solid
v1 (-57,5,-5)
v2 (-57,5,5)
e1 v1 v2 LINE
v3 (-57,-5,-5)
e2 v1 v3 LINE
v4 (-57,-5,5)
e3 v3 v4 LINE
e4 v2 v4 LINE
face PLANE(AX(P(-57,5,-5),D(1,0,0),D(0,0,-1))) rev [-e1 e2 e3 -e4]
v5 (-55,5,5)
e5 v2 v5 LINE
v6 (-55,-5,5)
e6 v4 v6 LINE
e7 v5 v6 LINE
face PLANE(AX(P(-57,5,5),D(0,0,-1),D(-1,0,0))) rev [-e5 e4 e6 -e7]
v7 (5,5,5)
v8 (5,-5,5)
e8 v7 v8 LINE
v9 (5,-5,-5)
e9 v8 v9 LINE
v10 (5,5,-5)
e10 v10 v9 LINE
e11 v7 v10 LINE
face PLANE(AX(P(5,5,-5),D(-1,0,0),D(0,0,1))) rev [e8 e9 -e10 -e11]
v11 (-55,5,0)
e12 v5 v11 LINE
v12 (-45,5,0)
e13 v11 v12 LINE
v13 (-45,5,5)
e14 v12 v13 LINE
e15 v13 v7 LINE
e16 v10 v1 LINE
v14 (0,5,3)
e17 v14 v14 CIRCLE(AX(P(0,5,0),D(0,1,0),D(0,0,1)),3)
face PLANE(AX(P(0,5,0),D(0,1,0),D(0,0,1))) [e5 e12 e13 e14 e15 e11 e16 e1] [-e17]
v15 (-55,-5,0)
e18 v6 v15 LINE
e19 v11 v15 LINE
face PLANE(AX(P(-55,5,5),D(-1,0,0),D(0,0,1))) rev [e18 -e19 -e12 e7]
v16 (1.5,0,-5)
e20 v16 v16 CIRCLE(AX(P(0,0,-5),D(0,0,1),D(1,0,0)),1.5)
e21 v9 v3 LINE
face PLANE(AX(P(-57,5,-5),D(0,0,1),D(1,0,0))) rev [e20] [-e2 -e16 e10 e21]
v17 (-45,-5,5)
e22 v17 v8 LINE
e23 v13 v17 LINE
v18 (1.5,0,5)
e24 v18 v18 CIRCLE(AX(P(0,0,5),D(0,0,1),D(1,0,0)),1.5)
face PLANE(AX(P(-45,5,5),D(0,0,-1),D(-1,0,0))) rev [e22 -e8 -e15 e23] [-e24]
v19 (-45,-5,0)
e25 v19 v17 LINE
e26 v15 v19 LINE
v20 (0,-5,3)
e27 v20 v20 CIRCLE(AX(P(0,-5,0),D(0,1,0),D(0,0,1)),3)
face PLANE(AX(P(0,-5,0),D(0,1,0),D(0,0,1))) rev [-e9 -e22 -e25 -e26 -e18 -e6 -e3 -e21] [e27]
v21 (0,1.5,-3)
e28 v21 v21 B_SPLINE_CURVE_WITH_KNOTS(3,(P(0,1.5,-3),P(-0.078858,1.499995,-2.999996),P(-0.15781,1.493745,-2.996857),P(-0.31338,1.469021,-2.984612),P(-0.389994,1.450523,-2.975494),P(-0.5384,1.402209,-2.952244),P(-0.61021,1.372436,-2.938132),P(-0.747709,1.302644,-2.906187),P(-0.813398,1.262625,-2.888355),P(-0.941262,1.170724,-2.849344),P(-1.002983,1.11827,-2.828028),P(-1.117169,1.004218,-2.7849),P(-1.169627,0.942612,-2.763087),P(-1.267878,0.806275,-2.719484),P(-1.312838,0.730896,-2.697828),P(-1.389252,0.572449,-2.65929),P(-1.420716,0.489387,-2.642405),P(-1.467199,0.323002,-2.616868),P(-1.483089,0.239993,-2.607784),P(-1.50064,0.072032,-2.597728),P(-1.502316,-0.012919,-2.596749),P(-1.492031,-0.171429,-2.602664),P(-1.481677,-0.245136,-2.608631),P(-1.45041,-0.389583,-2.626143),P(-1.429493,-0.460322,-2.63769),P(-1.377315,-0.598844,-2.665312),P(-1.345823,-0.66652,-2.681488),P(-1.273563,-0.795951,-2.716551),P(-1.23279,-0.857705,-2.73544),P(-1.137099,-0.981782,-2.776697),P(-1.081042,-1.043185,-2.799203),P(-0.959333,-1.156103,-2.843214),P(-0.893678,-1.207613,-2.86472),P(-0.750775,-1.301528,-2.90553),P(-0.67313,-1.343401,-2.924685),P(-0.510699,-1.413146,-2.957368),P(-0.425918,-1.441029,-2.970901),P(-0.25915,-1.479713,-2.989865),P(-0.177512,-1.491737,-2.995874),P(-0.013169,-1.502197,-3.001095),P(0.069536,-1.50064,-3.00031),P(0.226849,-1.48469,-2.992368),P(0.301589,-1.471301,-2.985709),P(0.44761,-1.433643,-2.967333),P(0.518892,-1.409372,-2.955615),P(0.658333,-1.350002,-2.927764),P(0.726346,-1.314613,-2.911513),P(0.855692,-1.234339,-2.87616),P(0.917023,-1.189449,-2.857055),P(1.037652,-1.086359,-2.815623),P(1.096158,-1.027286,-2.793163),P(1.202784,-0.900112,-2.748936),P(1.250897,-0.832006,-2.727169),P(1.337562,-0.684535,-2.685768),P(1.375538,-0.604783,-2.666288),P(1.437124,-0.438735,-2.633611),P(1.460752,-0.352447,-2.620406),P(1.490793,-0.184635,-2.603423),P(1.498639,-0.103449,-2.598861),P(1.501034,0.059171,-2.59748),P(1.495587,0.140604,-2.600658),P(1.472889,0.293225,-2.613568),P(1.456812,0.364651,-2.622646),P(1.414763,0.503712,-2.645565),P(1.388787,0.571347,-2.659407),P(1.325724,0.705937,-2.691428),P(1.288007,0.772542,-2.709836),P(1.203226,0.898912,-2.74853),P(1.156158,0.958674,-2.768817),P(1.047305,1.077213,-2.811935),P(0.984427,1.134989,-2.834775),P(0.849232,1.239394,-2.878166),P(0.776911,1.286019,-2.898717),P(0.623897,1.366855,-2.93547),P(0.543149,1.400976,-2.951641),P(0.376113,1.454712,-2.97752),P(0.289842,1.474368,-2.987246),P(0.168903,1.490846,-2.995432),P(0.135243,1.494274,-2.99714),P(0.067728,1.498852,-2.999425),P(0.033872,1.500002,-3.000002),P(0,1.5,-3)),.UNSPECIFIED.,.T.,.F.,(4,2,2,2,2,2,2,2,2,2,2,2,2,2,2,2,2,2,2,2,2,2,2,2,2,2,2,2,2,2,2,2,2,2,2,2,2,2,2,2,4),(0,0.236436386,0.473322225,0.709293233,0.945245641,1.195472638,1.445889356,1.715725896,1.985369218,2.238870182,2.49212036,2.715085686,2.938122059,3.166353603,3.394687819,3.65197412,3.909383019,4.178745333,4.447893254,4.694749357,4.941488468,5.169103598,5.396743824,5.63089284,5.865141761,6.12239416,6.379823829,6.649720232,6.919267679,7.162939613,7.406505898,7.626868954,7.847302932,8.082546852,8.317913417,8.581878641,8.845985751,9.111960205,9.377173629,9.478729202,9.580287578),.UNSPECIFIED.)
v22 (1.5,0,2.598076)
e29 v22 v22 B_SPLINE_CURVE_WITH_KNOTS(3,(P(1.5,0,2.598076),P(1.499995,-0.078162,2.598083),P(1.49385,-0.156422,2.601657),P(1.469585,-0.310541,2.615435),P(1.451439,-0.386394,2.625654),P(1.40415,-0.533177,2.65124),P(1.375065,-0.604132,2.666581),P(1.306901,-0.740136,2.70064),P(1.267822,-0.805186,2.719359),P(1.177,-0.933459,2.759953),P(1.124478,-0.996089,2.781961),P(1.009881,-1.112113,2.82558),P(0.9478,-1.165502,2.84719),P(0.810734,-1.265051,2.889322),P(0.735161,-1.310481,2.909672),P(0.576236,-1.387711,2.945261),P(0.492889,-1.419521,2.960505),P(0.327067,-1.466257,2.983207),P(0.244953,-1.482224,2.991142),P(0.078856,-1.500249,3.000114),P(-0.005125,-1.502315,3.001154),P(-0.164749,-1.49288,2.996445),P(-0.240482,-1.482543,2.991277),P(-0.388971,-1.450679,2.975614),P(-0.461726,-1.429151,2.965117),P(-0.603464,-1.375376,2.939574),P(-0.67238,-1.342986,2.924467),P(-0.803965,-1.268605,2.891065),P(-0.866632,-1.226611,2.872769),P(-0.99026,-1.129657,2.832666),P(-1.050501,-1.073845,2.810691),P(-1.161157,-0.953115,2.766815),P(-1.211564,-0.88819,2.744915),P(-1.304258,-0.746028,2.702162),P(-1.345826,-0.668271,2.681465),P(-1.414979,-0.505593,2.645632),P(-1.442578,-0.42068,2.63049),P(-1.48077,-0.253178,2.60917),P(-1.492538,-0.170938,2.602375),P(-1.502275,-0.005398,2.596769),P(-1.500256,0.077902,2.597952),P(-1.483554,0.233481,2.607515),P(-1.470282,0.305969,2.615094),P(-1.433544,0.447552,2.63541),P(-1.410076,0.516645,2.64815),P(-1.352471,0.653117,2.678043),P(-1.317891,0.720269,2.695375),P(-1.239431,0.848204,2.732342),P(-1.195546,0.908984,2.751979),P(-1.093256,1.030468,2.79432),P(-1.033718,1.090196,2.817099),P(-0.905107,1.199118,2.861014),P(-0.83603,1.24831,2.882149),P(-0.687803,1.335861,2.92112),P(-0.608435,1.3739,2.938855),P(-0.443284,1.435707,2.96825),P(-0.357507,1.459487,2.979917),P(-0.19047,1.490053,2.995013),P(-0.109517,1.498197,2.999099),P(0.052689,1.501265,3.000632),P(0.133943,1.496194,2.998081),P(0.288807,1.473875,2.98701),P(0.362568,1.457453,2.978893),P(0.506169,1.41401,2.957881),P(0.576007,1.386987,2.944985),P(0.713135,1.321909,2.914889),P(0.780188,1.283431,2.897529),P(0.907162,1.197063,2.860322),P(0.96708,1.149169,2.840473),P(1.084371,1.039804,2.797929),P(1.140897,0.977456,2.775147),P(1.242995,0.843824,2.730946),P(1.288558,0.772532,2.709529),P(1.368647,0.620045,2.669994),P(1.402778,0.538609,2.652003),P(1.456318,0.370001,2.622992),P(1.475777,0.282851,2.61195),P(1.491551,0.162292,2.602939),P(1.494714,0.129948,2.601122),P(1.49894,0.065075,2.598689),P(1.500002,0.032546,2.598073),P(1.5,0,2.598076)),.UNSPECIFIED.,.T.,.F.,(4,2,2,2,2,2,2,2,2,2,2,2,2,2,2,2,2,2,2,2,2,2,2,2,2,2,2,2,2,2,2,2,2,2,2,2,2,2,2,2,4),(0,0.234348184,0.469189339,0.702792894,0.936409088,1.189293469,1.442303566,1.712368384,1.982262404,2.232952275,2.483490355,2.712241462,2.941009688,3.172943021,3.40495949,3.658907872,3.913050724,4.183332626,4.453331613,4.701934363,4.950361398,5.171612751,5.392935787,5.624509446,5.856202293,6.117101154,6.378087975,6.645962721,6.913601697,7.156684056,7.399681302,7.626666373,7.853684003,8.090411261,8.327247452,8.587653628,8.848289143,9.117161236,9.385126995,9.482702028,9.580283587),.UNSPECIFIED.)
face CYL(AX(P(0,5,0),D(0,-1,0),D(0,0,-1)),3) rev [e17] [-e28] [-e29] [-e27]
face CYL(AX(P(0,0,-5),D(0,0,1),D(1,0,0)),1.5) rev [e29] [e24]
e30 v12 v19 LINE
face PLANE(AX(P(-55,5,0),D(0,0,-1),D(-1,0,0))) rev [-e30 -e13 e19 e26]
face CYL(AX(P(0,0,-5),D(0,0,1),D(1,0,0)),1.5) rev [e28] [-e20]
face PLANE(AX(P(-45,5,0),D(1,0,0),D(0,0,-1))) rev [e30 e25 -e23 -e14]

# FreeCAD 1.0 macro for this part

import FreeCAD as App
import Part
import Sketcher
Q = App.Units.Quantity

doc = App.newDocument("Part")
params = doc.addObject("Spreadsheet::Sheet", "Params")
for row, (alias, value) in enumerate([
    ("sketch1_diameter", "6 mm"),
    ("sketch1_width", "10 mm"),
    ("sketch1_width2", "50 mm"),
    ("sketch1_width3", "62 mm"),
    ("sketch1_height", "5 mm"),
    ("pad1_length", "10 mm"),
    ("sketch2_diameter", "3 mm"),
], start=1):
    params.set(f"A{row}", alias)
    params.set(f"B{row}", "=" + value)
    params.setAlias(f"B{row}", alias)

body = doc.addObject("PartDesign::Body", "Body")

# Sketch on XZ plane
sketch1 = body.newObject("Sketcher::SketchObject", "Sketch")
sketch1.AttachmentSupport = (doc.getObject("XZ_Plane"), [""])
sketch1.MapMode = "FlatFace"
sketch1.addGeometry([
    Part.LineSegment(App.Vector(-55, 5, 0), App.Vector(-55, 0, 0)),  # 0
    Part.LineSegment(App.Vector(-55, 0, 0), App.Vector(-45, 0, 0)),  # 1
    Part.LineSegment(App.Vector(-45, 0, 0), App.Vector(-45, 5, 0)),  # 2
    Part.LineSegment(App.Vector(-45, 5, 0), App.Vector(5, 5, 0)),  # 3
    Part.LineSegment(App.Vector(5, 5, 0), App.Vector(5, -5, 0)),  # 4
    Part.LineSegment(App.Vector(5, -5, 0), App.Vector(-57, -5, 0)),  # 5
    Part.LineSegment(App.Vector(-57, -5, 0), App.Vector(-57, 5, 0)),  # 6
    Part.LineSegment(App.Vector(-57, 5, 0), App.Vector(-55, 5, 0)),  # 7
    Part.Circle(App.Vector(0, 0, 0), App.Vector(0, 0, 1), 3),  # 8
], False)
sketch1.addConstraint([
    Sketcher.Constraint("Coincident", 0, 2, 1, 1),
    Sketcher.Constraint("Coincident", 1, 2, 2, 1),
    Sketcher.Constraint("Coincident", 2, 2, 3, 1),
    Sketcher.Constraint("Coincident", 3, 2, 4, 1),
    Sketcher.Constraint("Coincident", 4, 2, 5, 1),
    Sketcher.Constraint("Coincident", 5, 2, 6, 1),
    Sketcher.Constraint("Coincident", 6, 2, 7, 1),
    Sketcher.Constraint("Coincident", 7, 2, 0, 1),
    Sketcher.Constraint("Vertical", 0),
    Sketcher.Constraint("Horizontal", 1),
    Sketcher.Constraint("Vertical", 2),
    Sketcher.Constraint("Horizontal", 3),
    Sketcher.Constraint("Vertical", 4),
    Sketcher.Constraint("Horizontal", 5),
    Sketcher.Constraint("Vertical", 6),
    Sketcher.Constraint("Horizontal", 7),
    Sketcher.Constraint("Coincident", 8, 3, -1, 1),
    Sketcher.Constraint("PointOnObject", 0, 2, -1),
    Sketcher.Constraint("Horizontal", 3, 2, 6, 2),
    Sketcher.Constraint("Equal", 1, 4),
    Sketcher.Constraint("Diameter", 8, Q("6 mm")),
    Sketcher.Constraint("DistanceX", 1, 1, 1, 2, Q("10 mm")),
    Sketcher.Constraint("DistanceX", 3, 1, 3, 2, Q("50 mm")),
    Sketcher.Constraint("DistanceX", 5, 2, 5, 1, Q("62 mm")),
    Sketcher.Constraint("DistanceY", 0, 2, 0, 1, Q("5 mm")),
    Sketcher.Constraint("DistanceX", 0, 2, -1, 1, Q("55 mm")),
])
sketch1.setExpression("Constraints[20]", "Params.sketch1_diameter")
sketch1.setExpression("Constraints[21]", "Params.sketch1_width")
sketch1.setExpression("Constraints[22]", "Params.sketch1_width2")
sketch1.setExpression("Constraints[23]", "Params.sketch1_width3")
sketch1.setExpression("Constraints[24]", "Params.sketch1_height")
pad1 = body.newObject("PartDesign::Pad", "Pad")
pad1.Profile = sketch1
pad1.setExpression("Length", "Params.pad1_length")
pad1.Midplane = True

# Sketch on XY plane
sketch2 = body.newObject("Sketcher::SketchObject", "Sketch001")
sketch2.AttachmentSupport = (doc.getObject("XY_Plane"), [""])
sketch2.MapMode = "FlatFace"
sketch2.AttachmentOffset = App.Placement(App.Vector(0, 0, 5), App.Rotation())
sketch2.addGeometry(Part.Circle(App.Vector(0, 0, 0), App.Vector(0, 0, 1), 1.5), False)
sketch2.addConstraint([
    Sketcher.Constraint("Coincident", 0, 3, -1, 1),
    Sketcher.Constraint("Diameter", 0, Q("3 mm")),
])
sketch2.setExpression("Constraints[1]", "Params.sketch2_diameter")
pocket1 = body.newObject("PartDesign::Pocket", "Pocket")
pocket1.Profile = sketch2
pocket1.Type = "ThroughAll"

doc.recompute()
